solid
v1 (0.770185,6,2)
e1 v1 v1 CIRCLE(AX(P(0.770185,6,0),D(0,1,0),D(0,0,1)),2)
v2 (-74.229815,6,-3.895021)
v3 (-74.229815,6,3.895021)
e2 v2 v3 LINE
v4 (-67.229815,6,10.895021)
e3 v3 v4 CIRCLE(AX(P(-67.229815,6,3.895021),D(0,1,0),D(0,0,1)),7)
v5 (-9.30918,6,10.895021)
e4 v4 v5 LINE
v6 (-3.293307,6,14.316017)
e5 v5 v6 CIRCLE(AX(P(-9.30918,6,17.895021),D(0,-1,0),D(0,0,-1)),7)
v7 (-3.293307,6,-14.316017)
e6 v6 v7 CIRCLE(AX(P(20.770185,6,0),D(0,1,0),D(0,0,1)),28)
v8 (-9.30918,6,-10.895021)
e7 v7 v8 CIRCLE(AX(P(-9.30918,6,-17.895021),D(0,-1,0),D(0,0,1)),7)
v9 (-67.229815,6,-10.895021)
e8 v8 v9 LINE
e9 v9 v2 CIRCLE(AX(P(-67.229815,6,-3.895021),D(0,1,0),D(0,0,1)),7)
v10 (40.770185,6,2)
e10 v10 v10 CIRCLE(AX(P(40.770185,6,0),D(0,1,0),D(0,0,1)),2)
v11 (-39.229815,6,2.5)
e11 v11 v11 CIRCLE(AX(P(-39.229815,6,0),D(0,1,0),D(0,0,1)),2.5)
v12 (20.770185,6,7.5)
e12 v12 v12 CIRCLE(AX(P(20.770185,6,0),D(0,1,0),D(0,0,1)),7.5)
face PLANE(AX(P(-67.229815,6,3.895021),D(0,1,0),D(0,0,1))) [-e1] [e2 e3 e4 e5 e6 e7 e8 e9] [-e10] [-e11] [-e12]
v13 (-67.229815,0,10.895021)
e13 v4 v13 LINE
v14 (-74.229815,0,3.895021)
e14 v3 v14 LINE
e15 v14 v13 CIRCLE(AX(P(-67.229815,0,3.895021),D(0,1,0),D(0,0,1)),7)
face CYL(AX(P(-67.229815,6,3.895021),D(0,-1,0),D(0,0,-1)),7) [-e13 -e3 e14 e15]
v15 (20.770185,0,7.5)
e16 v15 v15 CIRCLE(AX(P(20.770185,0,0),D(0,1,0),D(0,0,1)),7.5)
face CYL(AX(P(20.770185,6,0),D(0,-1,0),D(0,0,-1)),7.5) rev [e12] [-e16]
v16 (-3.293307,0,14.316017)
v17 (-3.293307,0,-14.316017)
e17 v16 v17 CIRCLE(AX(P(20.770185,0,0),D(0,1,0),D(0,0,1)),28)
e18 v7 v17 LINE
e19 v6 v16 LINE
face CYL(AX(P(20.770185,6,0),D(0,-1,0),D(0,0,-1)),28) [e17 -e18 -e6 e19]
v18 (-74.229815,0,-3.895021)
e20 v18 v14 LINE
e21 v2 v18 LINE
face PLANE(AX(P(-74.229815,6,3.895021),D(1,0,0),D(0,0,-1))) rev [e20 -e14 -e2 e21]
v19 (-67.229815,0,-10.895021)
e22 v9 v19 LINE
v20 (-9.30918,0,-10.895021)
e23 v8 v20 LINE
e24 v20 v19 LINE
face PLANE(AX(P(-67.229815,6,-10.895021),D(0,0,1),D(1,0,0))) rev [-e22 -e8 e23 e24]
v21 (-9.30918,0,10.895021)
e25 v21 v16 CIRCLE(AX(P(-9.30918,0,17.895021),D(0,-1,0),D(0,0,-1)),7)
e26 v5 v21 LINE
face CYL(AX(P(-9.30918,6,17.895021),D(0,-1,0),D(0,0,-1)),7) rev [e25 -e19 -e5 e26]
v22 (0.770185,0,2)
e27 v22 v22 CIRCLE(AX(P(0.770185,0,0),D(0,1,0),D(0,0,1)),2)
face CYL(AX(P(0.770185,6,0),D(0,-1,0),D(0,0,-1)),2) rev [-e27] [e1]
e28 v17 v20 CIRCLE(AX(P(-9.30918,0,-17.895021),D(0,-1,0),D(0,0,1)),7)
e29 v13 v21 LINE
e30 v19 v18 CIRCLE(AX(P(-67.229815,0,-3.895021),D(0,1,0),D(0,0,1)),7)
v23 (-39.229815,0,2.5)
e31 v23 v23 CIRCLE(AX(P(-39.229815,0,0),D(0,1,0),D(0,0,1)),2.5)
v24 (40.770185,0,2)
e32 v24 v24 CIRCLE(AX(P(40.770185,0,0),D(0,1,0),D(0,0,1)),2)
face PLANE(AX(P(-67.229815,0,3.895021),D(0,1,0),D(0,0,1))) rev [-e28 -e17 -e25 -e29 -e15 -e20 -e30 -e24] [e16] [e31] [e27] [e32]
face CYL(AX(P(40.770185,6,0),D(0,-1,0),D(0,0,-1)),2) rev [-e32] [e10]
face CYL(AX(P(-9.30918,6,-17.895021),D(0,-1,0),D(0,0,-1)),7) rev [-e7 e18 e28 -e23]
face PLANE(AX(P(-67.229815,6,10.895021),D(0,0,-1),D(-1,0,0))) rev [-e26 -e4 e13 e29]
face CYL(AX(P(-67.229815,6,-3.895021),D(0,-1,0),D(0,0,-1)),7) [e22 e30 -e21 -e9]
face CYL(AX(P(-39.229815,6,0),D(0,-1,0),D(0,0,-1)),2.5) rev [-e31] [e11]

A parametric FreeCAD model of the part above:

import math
import FreeCAD as App
import Part
import Sketcher

V = App.Vector
Q = App.Units.Quantity

doc = App.newDocument("Part")
params = doc.addObject("Spreadsheet::Sheet", "Params")
for row, (alias, value) in enumerate([
    ("sketch1_diameter", "4 mm"),
    ("sketch1_diameter2", "15 mm"),
    ("sketch1_diameter3", "5 mm"),
    ("sketch1_radius", "7 mm"),
    ("sketch1_radius2", "28 mm"),
    ("pad1_length", "6 mm"),
], start=1):
    params.set(f"A{row}", alias)
    params.set(f"B{row}", "=" + value)
    params.setAlias(f"B{row}", alias)

body = doc.addObject("PartDesign::Body", "Body")

# Sketch on XZ plane
sketch1 = body.newObject("Sketcher::SketchObject", "Sketch")
sketch1.AttachmentSupport = (doc.getObject("XZ_Plane"), [""])
sketch1.MapMode = "FlatFace"
sketch1.addGeometry([
    Part.LineSegment(V(-74.2, -3.9, 0), V(-74.2, 3.9, 0)),  # 0
    Part.ArcOfCircle(Part.Circle(V(-67.2, 3.9, 0), V(0, 0, 1), 7), math.radians(90), math.radians(180)),  # 1
    Part.LineSegment(V(-67.2, 10.9, 0), V(-9.3, 10.9, 0)),  # 2
    Part.ArcOfCircle(Part.Circle(V(-9.3, 17.9, 0), V(0, 0, 1), 7), math.radians(-90), math.radians(-31)),  # 3
    Part.ArcOfCircle(Part.Circle(V(20.8, 0, 0), V(0, 0, 1), 28), math.radians(-149), math.radians(149)),  # 4
    Part.ArcOfCircle(Part.Circle(V(-9.3, -17.9, 0), V(0, 0, 1), 7), math.radians(31), math.radians(90)),  # 5
    Part.LineSegment(V(-9.3, -10.9, 0), V(-67.2, -10.9, 0)),  # 6
    Part.ArcOfCircle(Part.Circle(V(-67.2, -3.9, 0), V(0, 0, 1), 7), math.radians(180), math.radians(270)),  # 7
    Part.Circle(V(40.8, 0, 0), V(0, 0, 1), 2),  # 8
    Part.Circle(V(20.8, 0, 0), V(0, 0, 1), 7.5),  # 9
    Part.Circle(V(0.8, 0, 0), V(0, 0, 1), 2),  # 10
    Part.Circle(V(-39.2, 0, 0), V(0, 0, 1), 2.5),  # 11
], False)
sketch1.addConstraint([
    Sketcher.Constraint("Tangent", 0, 2, 1, 2),
    Sketcher.Constraint("Tangent", 1, 1, 2, 1),
    Sketcher.Constraint("Tangent", 2, 2, 3, 1),
    Sketcher.Constraint("Tangent", 3, 2, 4, 2),
    Sketcher.Constraint("Tangent", 4, 1, 5, 1),
    Sketcher.Constraint("Tangent", 5, 2, 6, 1),
    Sketcher.Constraint("Tangent", 6, 2, 7, 2),
    Sketcher.Constraint("Tangent", 7, 1, 0, 1),
    Sketcher.Constraint("Vertical", 0),
    Sketcher.Constraint("Horizontal", 2),
    Sketcher.Constraint("Horizontal", 6),
    Sketcher.Constraint("Coincident", 9, 3, 4, 3),
    Sketcher.Constraint("Equal", 1, 3),
    Sketcher.Constraint("Equal", 3, 5),
    Sketcher.Constraint("Equal", 5, 7),
    Sketcher.Constraint("Equal", 8, 10),
    Sketcher.Constraint("Symmetric", 3, 3, 5, 3, -1),
    Sketcher.Constraint("PointOnObject", 8, 3, -1),
    Sketcher.Constraint("PointOnObject", 10, 3, -1),
    Sketcher.Constraint("PointOnObject", 11, 3, -1),
    Sketcher.Constraint("Diameter", 8, Q("4 mm")),
    Sketcher.Constraint("Diameter", 9, Q("15 mm")),
    Sketcher.Constraint("Diameter", 11, Q("5 mm")),
    Sketcher.Constraint("Radius", 1, Q("7 mm")),
    Sketcher.Constraint("Radius", 4, Q("28 mm")),
    Sketcher.Constraint("DistanceX", 1, 3, 4, 3, Q("88 mm")),
    Sketcher.Constraint("DistanceX", 4, 3, 8, 3, Q("20 mm")),
    Sketcher.Constraint("DistanceX", 10, 3, 4, 3, Q("20 mm")),
    Sketcher.Constraint("DistanceX", 1, 3, 11, 3, Q("28 mm")),
    Sketcher.Constraint("DistanceX", 2, 1, 2, 2, Q("57.920635 mm")),
    Sketcher.Constraint("DistanceX", 3, 3, -1, 1, Q("9.30918 mm")),
])
sketch1.setExpression("Constraints[20]", "Params.sketch1_diameter")
sketch1.setExpression("Constraints[21]", "Params.sketch1_diameter2")
sketch1.setExpression("Constraints[22]", "Params.sketch1_diameter3")
sketch1.setExpression("Constraints[23]", "Params.sketch1_radius")
sketch1.setExpression("Constraints[24]", "Params.sketch1_radius2")
pad1 = body.newObject("PartDesign::Pad", "Pad")
pad1.Profile = sketch1
pad1.setExpression("Length", "Params.pad1_length")
pad1.Reversed = True

doc.recompute()
